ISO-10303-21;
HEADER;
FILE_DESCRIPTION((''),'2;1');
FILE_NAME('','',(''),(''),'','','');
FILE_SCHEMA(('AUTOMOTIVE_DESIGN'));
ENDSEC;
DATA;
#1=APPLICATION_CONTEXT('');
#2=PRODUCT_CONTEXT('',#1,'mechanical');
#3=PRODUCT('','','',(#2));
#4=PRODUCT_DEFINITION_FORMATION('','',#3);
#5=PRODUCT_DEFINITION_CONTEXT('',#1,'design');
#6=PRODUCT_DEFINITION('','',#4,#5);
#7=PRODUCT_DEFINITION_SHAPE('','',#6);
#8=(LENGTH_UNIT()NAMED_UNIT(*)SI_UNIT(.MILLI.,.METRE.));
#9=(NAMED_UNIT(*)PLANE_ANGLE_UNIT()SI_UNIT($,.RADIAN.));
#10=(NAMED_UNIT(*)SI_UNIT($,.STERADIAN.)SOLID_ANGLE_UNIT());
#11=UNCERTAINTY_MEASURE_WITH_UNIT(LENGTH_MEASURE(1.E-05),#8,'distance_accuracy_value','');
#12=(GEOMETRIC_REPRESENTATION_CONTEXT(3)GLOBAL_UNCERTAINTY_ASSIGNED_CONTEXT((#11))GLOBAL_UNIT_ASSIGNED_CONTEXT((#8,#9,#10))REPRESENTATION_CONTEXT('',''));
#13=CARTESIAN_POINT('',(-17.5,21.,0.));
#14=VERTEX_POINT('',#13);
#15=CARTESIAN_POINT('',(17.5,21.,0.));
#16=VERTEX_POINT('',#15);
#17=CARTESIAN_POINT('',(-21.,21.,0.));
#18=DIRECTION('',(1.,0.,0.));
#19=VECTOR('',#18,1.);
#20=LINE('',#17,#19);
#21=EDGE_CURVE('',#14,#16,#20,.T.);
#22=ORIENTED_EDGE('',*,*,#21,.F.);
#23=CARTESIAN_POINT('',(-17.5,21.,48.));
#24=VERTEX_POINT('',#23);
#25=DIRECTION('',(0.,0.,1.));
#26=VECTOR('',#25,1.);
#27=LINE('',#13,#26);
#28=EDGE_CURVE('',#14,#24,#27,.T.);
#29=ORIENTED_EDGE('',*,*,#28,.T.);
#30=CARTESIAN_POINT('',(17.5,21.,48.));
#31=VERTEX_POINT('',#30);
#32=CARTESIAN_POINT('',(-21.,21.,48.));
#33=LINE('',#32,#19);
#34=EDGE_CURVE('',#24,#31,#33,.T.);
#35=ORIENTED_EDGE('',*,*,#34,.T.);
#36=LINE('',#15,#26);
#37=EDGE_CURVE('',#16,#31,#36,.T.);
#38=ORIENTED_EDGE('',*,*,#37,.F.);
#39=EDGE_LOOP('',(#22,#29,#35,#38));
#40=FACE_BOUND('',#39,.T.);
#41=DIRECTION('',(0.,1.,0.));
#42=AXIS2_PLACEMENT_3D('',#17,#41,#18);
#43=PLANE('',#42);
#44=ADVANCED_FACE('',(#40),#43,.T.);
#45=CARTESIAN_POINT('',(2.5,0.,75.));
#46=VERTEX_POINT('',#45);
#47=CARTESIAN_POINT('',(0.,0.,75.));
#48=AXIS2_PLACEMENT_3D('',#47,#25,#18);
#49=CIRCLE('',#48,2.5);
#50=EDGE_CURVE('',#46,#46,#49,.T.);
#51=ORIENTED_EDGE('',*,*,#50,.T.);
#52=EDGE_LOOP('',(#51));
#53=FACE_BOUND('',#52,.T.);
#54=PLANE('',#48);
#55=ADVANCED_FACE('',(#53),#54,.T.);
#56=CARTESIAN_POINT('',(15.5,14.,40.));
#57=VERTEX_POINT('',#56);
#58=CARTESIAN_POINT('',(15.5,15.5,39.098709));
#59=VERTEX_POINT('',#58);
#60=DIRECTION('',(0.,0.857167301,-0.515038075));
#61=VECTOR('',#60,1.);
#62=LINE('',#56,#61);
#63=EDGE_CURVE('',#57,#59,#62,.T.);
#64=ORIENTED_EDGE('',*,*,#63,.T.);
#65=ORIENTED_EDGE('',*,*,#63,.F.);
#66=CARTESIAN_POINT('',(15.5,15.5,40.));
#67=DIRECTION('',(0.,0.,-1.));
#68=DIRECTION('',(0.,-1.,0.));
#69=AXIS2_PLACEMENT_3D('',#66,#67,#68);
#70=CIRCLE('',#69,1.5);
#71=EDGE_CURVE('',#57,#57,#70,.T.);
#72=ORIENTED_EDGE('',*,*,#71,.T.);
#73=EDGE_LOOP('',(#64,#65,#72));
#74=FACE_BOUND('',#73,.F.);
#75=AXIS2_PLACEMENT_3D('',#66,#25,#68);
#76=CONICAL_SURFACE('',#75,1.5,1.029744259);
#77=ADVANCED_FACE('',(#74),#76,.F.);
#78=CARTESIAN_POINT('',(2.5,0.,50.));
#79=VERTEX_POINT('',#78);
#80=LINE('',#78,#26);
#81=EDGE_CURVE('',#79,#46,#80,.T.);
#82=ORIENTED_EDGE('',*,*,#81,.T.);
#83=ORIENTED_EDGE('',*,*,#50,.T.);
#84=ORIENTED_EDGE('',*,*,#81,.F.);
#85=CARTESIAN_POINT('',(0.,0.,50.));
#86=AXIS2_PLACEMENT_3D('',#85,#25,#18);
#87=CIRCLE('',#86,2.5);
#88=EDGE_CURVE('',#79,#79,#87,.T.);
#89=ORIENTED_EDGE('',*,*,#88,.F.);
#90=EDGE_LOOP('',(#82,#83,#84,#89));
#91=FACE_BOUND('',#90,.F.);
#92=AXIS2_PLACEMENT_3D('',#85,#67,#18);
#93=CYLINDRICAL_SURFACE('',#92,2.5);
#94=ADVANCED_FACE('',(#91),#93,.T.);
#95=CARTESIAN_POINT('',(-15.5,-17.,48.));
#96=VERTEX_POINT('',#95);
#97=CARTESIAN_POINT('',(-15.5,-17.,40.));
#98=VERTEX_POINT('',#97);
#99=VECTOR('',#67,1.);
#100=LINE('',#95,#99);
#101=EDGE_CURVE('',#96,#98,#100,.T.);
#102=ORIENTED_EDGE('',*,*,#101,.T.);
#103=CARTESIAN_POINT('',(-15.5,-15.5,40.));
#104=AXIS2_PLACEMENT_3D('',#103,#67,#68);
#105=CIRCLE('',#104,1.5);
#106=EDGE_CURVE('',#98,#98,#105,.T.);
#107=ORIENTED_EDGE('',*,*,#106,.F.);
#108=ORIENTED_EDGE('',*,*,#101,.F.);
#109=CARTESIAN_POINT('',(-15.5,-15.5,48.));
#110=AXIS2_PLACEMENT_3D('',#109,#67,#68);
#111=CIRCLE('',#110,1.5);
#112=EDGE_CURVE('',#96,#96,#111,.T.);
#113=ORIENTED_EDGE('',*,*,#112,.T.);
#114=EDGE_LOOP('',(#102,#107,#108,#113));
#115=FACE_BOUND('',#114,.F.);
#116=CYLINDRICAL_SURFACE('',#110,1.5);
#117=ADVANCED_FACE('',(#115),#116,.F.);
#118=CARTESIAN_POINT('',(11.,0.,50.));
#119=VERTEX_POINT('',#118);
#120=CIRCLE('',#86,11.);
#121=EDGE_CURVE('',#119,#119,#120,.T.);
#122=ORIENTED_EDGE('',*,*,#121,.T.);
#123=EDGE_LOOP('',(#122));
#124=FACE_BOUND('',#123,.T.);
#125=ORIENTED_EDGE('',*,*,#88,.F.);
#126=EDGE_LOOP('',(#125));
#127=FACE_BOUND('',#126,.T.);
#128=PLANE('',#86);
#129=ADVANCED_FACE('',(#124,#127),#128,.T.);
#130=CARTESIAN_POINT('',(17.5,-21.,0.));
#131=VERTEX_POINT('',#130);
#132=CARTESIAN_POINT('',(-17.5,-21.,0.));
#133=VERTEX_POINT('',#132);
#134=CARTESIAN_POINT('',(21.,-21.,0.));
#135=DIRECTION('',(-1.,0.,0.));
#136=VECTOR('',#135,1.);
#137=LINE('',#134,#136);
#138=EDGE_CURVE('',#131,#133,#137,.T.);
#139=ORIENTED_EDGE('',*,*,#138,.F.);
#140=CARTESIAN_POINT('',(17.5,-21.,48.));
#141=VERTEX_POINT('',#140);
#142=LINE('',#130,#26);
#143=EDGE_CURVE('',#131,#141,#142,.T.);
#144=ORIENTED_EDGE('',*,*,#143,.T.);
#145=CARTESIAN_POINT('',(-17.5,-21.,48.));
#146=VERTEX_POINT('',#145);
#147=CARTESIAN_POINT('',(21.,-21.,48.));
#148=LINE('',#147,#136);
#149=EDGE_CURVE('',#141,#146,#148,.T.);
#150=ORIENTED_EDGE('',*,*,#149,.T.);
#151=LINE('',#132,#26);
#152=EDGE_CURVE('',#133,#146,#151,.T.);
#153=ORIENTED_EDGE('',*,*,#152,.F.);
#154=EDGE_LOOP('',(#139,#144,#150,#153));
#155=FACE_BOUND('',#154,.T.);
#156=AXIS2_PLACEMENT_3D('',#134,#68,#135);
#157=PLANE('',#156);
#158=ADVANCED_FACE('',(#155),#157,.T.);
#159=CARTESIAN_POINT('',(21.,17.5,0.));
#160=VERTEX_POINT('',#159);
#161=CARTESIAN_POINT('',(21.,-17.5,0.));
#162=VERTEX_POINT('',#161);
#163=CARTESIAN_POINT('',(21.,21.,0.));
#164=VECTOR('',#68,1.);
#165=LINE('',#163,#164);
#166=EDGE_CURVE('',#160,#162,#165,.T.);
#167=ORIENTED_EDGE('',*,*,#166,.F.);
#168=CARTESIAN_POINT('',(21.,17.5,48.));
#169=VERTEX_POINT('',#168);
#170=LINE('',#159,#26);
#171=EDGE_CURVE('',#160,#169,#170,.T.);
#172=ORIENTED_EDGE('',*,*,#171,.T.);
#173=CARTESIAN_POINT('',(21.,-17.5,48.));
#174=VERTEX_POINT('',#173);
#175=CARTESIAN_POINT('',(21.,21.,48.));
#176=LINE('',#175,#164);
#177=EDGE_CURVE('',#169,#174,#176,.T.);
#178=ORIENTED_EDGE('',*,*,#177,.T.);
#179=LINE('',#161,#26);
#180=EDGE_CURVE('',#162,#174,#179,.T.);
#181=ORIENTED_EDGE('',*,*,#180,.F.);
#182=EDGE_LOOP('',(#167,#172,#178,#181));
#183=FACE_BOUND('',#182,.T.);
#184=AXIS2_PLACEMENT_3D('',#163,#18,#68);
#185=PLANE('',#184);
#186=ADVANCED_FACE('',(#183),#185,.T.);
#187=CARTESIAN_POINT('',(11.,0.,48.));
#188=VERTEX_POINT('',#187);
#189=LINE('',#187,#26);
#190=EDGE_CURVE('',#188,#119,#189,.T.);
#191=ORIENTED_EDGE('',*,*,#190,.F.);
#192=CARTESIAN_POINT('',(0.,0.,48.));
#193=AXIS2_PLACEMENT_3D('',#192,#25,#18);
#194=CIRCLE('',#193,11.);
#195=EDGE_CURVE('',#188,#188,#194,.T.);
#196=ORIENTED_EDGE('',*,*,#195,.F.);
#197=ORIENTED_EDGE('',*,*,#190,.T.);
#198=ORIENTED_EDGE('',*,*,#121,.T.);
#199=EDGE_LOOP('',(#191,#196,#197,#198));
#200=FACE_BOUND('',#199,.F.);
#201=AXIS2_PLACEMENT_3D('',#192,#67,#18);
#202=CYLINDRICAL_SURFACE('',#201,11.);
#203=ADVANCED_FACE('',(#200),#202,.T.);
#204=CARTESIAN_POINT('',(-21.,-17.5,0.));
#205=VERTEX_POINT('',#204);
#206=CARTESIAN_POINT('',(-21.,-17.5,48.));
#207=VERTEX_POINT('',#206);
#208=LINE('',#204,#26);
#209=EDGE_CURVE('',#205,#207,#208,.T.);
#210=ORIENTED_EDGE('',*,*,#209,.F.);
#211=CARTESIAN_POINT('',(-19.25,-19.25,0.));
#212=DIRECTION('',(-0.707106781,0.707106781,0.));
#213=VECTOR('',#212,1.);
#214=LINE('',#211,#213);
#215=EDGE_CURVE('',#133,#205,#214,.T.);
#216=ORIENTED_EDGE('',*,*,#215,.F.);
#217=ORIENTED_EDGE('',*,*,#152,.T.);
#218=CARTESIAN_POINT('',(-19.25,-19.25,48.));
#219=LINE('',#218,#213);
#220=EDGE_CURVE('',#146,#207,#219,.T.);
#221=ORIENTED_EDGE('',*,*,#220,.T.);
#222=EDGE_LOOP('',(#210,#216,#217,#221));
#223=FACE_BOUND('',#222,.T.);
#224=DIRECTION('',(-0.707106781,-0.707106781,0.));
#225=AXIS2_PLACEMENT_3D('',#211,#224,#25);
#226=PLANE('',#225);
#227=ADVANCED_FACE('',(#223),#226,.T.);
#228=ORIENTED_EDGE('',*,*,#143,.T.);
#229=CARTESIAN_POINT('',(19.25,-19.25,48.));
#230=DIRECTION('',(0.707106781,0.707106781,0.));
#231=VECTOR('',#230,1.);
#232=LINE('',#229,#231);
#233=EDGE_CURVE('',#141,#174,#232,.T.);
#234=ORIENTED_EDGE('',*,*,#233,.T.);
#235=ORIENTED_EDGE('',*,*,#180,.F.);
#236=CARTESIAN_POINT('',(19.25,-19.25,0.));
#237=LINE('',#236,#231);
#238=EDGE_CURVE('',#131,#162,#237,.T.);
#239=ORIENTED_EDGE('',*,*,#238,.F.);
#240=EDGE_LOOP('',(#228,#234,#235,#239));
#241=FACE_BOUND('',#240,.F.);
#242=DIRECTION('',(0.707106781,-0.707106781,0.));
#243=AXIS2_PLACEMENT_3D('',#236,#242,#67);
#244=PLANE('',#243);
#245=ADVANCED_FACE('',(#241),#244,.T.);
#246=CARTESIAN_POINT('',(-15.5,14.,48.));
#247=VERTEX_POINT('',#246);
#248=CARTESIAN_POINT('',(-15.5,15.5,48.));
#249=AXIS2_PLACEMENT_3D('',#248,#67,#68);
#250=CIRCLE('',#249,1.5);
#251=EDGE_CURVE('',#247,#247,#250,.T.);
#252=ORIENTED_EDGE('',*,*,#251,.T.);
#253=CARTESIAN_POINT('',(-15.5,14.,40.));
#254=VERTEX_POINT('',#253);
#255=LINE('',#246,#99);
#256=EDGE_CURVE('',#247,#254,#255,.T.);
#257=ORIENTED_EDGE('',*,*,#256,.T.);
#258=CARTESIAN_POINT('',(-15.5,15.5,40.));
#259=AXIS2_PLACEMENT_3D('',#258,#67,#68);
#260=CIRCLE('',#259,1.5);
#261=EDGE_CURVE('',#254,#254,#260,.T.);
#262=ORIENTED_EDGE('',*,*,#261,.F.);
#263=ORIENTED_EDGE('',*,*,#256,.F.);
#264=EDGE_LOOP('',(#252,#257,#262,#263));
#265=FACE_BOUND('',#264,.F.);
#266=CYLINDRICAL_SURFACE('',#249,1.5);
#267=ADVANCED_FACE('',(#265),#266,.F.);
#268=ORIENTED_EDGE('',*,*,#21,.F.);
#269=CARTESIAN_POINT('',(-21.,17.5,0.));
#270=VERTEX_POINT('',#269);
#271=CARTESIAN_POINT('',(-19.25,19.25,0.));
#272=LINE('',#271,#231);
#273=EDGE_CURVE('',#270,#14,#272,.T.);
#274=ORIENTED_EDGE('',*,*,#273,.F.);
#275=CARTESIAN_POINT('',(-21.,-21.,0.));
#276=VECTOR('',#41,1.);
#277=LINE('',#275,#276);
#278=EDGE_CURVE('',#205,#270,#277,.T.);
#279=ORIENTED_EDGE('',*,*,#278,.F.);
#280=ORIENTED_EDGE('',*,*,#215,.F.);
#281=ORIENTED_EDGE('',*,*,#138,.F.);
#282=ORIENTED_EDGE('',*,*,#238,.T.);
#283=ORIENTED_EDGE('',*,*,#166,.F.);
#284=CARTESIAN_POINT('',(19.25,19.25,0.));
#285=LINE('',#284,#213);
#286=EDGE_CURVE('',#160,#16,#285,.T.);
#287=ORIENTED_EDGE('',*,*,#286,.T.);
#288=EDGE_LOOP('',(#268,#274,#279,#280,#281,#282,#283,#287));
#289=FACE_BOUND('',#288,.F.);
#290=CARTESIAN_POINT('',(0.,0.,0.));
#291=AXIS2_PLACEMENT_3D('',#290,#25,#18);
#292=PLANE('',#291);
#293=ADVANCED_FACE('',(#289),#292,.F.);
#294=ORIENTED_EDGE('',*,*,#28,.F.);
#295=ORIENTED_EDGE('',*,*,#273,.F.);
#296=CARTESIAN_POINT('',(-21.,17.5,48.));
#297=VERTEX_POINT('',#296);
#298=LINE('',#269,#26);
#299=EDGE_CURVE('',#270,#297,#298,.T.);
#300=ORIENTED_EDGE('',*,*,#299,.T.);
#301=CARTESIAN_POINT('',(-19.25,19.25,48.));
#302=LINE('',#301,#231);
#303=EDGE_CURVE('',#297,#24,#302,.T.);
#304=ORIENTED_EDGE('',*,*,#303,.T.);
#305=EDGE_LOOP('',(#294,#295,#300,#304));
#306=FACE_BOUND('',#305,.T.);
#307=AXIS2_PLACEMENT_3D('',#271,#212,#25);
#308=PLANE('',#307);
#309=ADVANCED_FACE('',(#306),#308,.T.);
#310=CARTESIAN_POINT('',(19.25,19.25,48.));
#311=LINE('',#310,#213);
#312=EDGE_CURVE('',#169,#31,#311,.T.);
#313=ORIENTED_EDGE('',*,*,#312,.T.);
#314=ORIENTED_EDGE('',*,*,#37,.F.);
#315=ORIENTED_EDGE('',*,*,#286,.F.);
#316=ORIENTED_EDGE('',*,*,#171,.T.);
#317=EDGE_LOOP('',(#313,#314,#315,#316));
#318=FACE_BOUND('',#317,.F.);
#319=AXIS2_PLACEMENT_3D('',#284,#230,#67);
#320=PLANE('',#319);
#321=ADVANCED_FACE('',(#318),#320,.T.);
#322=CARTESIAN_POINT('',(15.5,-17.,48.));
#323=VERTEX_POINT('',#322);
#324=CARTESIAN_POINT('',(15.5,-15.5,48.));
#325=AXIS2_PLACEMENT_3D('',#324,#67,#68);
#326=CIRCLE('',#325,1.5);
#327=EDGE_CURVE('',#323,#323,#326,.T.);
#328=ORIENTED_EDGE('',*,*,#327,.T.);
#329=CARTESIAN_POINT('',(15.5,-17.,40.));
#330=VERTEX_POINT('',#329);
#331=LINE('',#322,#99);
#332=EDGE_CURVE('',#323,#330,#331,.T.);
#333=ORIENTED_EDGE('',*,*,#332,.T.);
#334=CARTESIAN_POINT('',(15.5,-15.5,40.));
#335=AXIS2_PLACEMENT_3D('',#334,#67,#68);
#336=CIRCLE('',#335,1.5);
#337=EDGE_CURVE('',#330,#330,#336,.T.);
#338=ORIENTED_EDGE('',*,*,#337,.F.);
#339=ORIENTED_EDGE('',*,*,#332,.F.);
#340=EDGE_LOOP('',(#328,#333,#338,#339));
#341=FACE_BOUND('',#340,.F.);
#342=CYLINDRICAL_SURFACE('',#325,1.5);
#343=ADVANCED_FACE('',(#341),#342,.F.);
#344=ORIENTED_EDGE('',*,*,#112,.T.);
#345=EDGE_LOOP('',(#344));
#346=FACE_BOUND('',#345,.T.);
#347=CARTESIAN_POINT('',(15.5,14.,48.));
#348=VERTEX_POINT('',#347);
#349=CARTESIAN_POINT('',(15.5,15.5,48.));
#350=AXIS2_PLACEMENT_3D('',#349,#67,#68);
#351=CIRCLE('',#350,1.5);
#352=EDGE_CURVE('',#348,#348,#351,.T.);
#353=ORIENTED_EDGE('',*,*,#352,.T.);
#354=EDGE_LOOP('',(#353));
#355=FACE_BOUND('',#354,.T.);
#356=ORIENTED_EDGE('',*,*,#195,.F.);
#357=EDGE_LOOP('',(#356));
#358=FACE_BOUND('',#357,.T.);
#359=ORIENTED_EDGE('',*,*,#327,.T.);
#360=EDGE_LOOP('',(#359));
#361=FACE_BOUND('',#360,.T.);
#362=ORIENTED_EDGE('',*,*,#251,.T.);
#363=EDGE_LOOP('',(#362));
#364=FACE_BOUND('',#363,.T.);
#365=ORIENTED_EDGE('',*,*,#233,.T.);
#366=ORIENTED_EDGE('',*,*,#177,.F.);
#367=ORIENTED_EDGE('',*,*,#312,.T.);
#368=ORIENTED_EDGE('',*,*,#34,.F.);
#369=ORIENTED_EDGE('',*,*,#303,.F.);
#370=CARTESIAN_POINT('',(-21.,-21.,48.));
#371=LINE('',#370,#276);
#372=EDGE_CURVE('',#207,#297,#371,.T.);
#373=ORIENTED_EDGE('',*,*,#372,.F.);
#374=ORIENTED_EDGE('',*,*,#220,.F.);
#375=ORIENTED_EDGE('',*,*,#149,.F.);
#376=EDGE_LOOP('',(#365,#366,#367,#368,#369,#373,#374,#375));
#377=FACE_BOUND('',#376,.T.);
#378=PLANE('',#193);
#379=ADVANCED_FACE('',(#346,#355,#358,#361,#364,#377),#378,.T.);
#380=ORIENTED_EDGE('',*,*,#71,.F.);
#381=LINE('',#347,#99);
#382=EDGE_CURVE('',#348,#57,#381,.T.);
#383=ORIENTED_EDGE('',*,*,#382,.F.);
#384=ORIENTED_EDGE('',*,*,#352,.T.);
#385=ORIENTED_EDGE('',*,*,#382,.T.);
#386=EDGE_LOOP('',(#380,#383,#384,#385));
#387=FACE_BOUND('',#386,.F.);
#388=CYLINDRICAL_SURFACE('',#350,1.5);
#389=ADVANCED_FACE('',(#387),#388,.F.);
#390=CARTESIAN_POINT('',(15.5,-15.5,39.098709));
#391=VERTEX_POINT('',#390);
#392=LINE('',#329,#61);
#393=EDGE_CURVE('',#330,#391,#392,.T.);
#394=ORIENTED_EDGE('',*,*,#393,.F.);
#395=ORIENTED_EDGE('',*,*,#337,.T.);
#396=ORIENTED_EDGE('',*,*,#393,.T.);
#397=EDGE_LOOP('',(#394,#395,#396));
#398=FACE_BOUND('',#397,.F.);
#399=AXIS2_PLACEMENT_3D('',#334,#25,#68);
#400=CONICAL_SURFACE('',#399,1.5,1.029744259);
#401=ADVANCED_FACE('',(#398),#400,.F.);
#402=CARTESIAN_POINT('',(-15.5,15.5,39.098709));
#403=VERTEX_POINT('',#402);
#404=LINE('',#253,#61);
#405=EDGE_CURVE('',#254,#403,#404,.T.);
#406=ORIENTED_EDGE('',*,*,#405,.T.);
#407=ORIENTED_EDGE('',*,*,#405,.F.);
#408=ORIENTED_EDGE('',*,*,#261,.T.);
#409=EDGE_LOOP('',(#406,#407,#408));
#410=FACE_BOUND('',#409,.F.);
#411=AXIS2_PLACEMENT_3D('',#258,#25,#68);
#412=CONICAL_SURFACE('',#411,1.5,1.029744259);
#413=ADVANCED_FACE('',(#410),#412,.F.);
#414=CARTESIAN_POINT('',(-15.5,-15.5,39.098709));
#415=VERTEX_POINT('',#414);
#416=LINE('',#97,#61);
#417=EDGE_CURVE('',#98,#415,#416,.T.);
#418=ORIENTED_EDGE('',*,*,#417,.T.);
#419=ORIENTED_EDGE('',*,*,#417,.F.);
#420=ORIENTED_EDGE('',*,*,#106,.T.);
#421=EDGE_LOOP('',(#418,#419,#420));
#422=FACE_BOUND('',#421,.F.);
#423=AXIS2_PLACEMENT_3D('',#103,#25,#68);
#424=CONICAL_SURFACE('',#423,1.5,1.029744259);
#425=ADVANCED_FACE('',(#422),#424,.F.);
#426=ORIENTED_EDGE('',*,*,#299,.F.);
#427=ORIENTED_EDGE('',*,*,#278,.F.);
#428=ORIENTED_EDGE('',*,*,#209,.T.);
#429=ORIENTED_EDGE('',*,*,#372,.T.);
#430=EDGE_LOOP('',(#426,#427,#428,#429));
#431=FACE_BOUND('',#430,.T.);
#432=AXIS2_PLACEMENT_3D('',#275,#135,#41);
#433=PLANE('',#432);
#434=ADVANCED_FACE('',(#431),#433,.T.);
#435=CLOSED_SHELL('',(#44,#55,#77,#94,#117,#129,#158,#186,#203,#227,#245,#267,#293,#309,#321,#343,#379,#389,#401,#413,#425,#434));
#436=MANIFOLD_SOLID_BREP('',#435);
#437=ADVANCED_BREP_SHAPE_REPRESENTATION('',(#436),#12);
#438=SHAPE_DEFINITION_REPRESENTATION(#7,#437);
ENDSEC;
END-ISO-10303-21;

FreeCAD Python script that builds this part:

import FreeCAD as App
import Part
import Sketcher

V = App.Vector
Q = App.Units.Quantity


def edges_at(feature, points):
    """Names of the edges that pass closest to the given points."""
    edges = feature.Shape.Edges
    near = lambda p: min(range(len(edges)), key=lambda i: edges[i].distToShape(Part.Vertex(*p))[0])
    return sorted({f"Edge{near(p) + 1}" for p in points})


def add_polygon(sketch, points):
    """Adds a closed chain of lines whose ends are joined by coincident constraints."""
    first, n = sketch.GeometryCount, len(points)
    for a, b in zip(points, points[1:] + points[:1]):
        sketch.addGeometry(Part.LineSegment(App.Vector(*a, 0), App.Vector(*b, 0)), False)
    for i in range(n):
        sketch.addConstraint(Sketcher.Constraint("Coincident", first + i, 2, first + (i + 1) % n, 1))

doc = App.newDocument("Part")
params = doc.addObject("Spreadsheet::Sheet", "Params")
for row, (alias, value) in enumerate([
    ("sketch1_width", "42 mm"),
    ("pad1_length", "48 mm"),
    ("sketch2_diameter", "3 mm"),
    ("hole_diameter", "3 mm"),
    ("hole_depth", "8 mm"),
    ("chamfer_size", "3.5 mm"),
    ("sketch3_diameter", "22 mm"),
    ("pad2_length", "2 mm"),
    ("sketch4_diameter", "5 mm"),
    ("pad3_length", "25 mm"),
], start=1):
    params.set(f"A{row}", alias)
    params.set(f"B{row}", "=" + value)
    params.setAlias(f"B{row}", alias)

body = doc.addObject("PartDesign::Body", "Body")

# Sketch on XY plane
sketch1 = body.newObject("Sketcher::SketchObject", "Sketch")
sketch1.AttachmentSupport = (doc.getObject("XY_Plane"), [""])
sketch1.MapMode = "FlatFace"
add_polygon(sketch1, [(-21, -21), (21, -21), (21, 21), (-21, 21)])  # lines 0-3
sketch1.addConstraint([
    Sketcher.Constraint("Horizontal", 0),
    Sketcher.Constraint("Vertical", 1),
    Sketcher.Constraint("Horizontal", 2),
    Sketcher.Constraint("Vertical", 3),
    Sketcher.Constraint("Symmetric", 0, 2, 2, 2, -1, 1),
    Sketcher.Constraint("Equal", 2, 1),
    Sketcher.Constraint("DistanceX", 0, 1, 0, 2, Q("42 mm")),
])
sketch1.setExpression("Constraints[10]", "Params.sketch1_width")
pad1 = body.newObject("PartDesign::Pad", "Pad")
pad1.Profile = sketch1
pad1.setExpression("Length", "Params.pad1_length")

# Sketch on XY plane
sketch2 = body.newObject("Sketcher::SketchObject", "Sketch001")
sketch2.AttachmentSupport = (doc.getObject("XY_Plane"), [""])
sketch2.MapMode = "FlatFace"
sketch2.AttachmentOffset = App.Placement(V(0, 0, 48), App.Rotation())
sketch2.addGeometry([
    Part.Circle(V(-15.5, 15.5, 0), V(0, 0, 1), 1.5),
    Part.Circle(V(-15.5, -15.5, 0), V(0, 0, 1), 1.5),
    Part.Circle(V(15.5, -15.5, 0), V(0, 0, 1), 1.5),
    Part.Circle(V(15.5, 15.5, 0), V(0, 0, 1), 1.5),
], False)
sketch2.addConstraint([
    Sketcher.Constraint("Equal", 0, 1),
    Sketcher.Constraint("Equal", 1, 2),
    Sketcher.Constraint("Equal", 2, 3),
    Sketcher.Constraint("Symmetric", 0, 3, 2, 3, -1, 1),
    Sketcher.Constraint("Symmetric", 1, 3, 3, 3, -1, 1),
    Sketcher.Constraint("Symmetric", 1, 3, 2, 3, -2),
    Sketcher.Constraint("Diameter", 0, Q("3 mm")),
    Sketcher.Constraint("DistanceY", 1, 3, 0, 3, Q("31 mm")),
    Sketcher.Constraint("DistanceX", 1, 3, 2, 3, Q("31 mm")),
])
sketch2.setExpression("Constraints[6]", "Params.sketch2_diameter")
doc.recompute()
hole = body.newObject("PartDesign::Hole", "Hole")
hole.Profile = sketch2
hole.ThreadType = "None"
hole.setExpression("Diameter", "Params.hole_diameter")
hole.DepthType = "Dimension"
hole.setExpression("Depth", "Params.hole_depth")
hole.DrillPoint = "Angled"
hole.DrillPointAngle = 118
doc.recompute()

chamfer = body.newObject("PartDesign::Chamfer", "Chamfer")
chamfer.Base = (hole, edges_at(hole, [
    (21, 21, 24),
    (21, -21, 24),
    (-21, 21, 24),
    (-21, -21, 24),
]))
chamfer.setExpression("Size", "Params.chamfer_size")

# Sketch on XY plane
sketch3 = body.newObject("Sketcher::SketchObject", "Sketch002")
sketch3.AttachmentSupport = (doc.getObject("XY_Plane"), [""])
sketch3.MapMode = "FlatFace"
sketch3.AttachmentOffset = App.Placement(V(0, 0, 48), App.Rotation())
sketch3.addGeometry(Part.Circle(V(0, 0, 0), V(0, 0, 1), 11), False)
sketch3.addConstraint([
    Sketcher.Constraint("Coincident", 0, 3, -1, 1),
    Sketcher.Constraint("Diameter", 0, Q("22 mm")),
])
sketch3.setExpression("Constraints[1]", "Params.sketch3_diameter")
pad2 = body.newObject("PartDesign::Pad", "Pad001")
pad2.Profile = sketch3
pad2.setExpression("Length", "Params.pad2_length")

# Sketch on XY plane
sketch4 = body.newObject("Sketcher::SketchObject", "Sketch003")
sketch4.AttachmentSupport = (doc.getObject("XY_Plane"), [""])
sketch4.MapMode = "FlatFace"
sketch4.AttachmentOffset = App.Placement(V(0, 0, 50), App.Rotation())
sketch4.addGeometry(Part.Circle(V(0, 0, 0), V(0, 0, 1), 2.5), False)
sketch4.addConstraint([
    Sketcher.Constraint("Coincident", 0, 3, -1, 1),
    Sketcher.Constraint("Diameter", 0, Q("5 mm")),
])
sketch4.setExpression("Constraints[1]", "Params.sketch4_diameter")
pad3 = body.newObject("PartDesign::Pad", "Pad002")
pad3.Profile = sketch4
pad3.setExpression("Length", "Params.pad3_length")

doc.recompute()
